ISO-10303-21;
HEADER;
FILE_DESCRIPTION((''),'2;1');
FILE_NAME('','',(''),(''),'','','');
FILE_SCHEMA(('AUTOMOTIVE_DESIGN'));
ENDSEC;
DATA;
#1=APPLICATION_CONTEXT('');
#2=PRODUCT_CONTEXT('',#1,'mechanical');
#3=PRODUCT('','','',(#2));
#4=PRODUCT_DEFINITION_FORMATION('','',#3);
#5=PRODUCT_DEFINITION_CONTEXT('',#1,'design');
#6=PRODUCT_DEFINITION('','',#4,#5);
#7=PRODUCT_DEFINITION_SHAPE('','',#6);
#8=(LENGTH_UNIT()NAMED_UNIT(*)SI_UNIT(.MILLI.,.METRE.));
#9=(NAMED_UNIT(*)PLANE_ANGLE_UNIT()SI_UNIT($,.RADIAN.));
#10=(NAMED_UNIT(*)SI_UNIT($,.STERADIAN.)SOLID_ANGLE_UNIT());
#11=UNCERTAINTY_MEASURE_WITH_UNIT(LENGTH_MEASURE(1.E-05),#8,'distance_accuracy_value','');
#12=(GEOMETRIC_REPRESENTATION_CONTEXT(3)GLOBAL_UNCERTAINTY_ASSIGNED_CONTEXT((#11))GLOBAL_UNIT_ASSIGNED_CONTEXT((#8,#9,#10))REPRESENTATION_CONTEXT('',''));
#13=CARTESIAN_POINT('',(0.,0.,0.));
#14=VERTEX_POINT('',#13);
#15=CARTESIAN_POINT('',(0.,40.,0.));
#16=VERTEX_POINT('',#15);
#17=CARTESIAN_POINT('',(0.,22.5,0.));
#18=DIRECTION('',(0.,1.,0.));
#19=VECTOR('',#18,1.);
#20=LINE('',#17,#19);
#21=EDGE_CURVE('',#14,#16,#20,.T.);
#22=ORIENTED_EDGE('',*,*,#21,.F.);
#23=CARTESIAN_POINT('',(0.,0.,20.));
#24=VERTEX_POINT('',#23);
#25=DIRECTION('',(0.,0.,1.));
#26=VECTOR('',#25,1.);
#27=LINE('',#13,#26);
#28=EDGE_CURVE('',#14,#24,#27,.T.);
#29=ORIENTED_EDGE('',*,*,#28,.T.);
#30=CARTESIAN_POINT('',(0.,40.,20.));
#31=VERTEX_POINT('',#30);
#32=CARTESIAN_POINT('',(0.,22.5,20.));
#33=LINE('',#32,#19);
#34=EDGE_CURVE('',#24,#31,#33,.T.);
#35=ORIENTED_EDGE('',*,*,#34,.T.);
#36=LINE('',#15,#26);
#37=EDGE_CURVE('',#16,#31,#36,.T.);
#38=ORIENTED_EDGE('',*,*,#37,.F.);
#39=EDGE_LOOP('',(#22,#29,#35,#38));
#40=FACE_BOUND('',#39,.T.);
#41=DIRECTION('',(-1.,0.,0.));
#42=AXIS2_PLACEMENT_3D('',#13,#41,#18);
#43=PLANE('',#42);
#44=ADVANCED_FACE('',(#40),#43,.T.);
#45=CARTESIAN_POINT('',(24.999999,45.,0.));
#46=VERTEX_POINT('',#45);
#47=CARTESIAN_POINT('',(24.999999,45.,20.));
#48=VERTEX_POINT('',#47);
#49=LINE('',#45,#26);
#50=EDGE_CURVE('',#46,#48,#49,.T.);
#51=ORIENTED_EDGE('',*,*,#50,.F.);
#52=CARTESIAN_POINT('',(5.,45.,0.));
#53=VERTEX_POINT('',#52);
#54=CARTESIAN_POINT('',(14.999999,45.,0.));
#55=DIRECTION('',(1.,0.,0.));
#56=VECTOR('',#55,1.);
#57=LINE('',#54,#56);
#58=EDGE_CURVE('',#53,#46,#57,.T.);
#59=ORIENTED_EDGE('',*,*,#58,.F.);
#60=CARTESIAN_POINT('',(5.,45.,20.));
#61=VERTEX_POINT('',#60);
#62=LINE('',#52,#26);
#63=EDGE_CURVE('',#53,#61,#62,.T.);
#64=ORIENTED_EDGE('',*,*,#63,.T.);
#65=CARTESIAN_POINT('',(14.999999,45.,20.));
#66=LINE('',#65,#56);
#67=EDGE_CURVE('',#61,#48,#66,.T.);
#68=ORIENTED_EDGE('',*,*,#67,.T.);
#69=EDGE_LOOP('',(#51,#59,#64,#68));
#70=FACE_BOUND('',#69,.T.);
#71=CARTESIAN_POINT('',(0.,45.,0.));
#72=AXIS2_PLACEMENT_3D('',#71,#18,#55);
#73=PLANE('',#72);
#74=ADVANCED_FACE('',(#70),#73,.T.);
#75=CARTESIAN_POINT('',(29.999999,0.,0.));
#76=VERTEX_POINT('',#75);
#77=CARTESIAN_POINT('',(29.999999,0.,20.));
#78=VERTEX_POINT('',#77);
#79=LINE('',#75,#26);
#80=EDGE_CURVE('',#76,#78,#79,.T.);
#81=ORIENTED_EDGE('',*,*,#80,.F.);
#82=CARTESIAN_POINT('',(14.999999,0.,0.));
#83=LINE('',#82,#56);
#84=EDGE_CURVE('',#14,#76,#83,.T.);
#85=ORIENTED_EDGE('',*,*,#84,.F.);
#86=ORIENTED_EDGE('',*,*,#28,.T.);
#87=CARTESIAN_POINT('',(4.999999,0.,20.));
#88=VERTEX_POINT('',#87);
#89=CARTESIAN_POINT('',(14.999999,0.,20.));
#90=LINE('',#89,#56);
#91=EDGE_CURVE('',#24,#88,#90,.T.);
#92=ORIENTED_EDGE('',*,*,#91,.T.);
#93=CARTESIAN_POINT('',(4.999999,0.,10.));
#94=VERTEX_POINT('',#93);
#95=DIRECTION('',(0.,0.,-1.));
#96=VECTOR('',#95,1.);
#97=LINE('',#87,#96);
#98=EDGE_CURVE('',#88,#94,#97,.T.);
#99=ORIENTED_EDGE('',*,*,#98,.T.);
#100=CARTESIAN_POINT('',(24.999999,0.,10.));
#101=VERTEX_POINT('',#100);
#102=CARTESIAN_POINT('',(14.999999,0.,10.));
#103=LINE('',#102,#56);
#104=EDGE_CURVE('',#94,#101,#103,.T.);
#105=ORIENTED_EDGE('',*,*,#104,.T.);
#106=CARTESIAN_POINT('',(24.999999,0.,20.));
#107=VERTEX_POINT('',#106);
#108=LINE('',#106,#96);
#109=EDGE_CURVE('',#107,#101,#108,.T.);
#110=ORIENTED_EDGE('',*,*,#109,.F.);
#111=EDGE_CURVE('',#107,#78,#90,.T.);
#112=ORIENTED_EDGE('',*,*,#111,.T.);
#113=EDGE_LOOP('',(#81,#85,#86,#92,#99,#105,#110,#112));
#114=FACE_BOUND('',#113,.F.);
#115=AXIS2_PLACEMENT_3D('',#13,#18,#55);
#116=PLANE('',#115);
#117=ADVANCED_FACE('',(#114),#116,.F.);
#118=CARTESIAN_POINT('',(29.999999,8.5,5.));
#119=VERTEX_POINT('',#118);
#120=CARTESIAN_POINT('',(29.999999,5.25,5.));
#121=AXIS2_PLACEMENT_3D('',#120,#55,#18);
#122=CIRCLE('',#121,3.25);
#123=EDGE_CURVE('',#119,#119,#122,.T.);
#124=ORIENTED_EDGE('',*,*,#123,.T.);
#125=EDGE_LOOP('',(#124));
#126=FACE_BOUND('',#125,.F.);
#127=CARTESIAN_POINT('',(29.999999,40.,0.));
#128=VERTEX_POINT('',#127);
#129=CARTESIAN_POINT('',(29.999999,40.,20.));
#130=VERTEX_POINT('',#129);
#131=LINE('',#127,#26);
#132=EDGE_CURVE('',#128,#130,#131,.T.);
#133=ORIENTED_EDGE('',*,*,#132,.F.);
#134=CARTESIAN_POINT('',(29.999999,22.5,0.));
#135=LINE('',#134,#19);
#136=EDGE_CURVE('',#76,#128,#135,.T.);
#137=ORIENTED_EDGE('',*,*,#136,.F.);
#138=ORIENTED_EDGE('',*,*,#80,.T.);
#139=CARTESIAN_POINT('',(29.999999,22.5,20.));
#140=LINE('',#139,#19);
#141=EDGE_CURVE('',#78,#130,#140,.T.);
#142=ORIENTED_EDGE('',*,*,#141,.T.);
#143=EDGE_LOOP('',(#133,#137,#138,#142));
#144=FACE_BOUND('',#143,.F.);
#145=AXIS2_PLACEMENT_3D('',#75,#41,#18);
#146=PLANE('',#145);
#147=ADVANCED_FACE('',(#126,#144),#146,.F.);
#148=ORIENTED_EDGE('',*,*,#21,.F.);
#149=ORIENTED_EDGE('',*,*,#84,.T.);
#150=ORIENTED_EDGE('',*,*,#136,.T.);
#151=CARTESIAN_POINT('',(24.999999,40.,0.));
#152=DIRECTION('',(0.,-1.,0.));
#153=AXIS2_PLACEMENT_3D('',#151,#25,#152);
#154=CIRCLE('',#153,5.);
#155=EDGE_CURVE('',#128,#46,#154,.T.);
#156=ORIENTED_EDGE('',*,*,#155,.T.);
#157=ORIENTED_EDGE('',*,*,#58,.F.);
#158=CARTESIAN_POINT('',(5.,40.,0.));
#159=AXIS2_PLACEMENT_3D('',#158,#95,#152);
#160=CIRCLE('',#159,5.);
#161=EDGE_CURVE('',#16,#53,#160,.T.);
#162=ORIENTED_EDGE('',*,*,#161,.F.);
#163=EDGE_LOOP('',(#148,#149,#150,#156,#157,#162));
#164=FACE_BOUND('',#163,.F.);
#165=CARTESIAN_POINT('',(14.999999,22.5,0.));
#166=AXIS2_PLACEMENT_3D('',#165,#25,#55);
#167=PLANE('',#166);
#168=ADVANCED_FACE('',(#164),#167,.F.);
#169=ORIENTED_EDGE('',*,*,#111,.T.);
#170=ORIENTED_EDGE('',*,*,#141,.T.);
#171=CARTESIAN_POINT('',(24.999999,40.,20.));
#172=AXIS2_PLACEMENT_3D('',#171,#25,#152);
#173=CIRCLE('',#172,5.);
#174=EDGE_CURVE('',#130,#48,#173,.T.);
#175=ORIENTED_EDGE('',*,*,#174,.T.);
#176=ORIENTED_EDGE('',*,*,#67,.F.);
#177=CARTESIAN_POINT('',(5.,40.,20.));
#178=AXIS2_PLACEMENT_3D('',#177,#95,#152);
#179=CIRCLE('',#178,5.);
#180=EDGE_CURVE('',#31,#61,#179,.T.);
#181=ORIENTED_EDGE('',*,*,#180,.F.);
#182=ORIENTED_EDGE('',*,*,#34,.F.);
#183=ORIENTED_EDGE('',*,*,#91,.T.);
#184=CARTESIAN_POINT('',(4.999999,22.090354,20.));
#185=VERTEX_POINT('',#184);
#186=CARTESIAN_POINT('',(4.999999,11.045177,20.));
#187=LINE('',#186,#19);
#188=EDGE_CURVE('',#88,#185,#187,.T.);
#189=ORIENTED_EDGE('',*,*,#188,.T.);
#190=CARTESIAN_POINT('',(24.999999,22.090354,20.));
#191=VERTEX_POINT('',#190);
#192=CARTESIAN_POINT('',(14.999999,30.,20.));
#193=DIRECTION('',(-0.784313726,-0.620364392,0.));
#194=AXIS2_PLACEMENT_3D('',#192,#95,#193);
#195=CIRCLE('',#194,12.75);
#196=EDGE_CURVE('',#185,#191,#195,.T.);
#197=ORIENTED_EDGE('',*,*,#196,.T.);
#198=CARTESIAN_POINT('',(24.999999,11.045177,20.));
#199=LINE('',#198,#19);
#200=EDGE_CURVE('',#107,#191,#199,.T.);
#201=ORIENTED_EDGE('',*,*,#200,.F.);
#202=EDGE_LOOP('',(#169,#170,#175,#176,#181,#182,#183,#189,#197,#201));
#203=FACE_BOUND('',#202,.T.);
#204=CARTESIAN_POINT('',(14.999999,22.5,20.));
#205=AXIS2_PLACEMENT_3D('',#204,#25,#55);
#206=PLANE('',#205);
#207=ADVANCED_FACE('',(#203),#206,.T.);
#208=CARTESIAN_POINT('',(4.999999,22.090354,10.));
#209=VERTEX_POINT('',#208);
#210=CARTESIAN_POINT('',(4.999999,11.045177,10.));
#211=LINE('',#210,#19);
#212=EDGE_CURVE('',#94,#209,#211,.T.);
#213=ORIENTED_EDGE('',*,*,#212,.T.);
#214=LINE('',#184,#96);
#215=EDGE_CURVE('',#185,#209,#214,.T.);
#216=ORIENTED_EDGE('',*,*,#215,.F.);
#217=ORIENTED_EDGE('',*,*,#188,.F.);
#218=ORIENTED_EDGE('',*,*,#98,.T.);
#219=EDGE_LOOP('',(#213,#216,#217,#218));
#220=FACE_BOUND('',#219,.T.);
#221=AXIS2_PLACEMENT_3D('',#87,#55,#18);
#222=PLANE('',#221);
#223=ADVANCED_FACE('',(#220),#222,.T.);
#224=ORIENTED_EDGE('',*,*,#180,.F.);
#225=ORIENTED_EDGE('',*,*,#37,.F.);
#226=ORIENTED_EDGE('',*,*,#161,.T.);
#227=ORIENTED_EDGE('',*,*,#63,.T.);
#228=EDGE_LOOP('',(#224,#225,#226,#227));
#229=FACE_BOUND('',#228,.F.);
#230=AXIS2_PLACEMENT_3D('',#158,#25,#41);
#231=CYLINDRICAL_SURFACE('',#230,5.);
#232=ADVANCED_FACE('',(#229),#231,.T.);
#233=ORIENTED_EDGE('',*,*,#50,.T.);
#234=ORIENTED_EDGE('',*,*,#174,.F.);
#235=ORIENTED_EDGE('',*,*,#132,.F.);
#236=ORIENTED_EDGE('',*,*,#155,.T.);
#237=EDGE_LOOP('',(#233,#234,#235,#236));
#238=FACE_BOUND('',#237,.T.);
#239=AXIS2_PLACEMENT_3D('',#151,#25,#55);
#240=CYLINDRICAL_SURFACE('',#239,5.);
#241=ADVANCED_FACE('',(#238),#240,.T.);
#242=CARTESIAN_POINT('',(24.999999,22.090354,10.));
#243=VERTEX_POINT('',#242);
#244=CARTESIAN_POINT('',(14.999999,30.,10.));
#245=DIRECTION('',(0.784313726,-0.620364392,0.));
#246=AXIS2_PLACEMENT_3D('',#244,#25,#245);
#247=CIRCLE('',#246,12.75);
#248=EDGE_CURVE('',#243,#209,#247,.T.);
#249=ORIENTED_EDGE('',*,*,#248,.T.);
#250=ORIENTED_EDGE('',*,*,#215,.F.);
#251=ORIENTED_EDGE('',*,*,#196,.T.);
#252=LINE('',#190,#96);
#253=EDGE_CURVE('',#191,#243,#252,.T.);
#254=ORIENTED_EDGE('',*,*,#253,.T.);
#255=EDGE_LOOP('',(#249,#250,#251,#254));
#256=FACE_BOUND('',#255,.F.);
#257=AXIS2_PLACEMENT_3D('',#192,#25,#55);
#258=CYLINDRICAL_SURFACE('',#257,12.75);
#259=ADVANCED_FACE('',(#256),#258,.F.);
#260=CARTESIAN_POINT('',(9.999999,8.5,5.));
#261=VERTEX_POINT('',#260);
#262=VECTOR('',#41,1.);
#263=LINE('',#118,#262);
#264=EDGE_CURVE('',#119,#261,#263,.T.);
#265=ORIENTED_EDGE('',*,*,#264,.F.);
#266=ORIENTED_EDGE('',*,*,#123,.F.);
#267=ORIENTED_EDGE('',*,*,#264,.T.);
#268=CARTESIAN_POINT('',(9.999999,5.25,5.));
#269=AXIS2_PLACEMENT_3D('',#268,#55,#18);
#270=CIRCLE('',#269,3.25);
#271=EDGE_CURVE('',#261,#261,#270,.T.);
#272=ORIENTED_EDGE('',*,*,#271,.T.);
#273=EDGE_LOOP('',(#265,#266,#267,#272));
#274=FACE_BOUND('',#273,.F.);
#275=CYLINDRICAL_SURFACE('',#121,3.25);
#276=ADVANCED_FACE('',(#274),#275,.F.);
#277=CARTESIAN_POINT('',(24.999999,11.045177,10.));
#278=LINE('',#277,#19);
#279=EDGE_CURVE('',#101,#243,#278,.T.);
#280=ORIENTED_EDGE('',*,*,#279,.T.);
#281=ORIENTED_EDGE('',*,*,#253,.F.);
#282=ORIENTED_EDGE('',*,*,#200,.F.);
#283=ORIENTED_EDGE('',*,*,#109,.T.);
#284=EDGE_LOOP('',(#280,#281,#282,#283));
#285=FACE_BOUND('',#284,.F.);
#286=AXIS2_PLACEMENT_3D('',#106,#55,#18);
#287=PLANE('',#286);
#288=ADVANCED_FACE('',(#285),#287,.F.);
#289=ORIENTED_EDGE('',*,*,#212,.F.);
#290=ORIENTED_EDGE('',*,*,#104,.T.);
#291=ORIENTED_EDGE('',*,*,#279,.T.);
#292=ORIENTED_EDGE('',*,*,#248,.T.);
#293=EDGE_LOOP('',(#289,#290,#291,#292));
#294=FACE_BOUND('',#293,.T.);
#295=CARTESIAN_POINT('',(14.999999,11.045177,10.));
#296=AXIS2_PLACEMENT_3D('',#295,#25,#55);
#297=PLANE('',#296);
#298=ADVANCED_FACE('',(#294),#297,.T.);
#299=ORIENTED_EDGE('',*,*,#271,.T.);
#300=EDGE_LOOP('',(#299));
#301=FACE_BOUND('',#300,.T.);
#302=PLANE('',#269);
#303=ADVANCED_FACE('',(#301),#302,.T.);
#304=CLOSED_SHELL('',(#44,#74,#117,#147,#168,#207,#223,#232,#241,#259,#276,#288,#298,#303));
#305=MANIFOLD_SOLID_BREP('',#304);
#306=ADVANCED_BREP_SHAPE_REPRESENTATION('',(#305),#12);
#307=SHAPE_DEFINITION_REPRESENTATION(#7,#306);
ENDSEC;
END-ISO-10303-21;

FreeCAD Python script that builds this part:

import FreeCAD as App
import Part
import Sketcher
from FreeCAD import Vector


def edges_at(feature, points):
    """Names of the edges that pass closest to the given points."""
    edges = feature.Shape.Edges
    near = lambda p: min(range(len(edges)), key=lambda i: edges[i].distToShape(Part.Vertex(*p))[0])
    return sorted({f"Edge{near(p) + 1}" for p in points})


def add_polygon(sketch, points):
    """Adds a closed chain of lines whose ends are joined by coincident constraints."""
    first, n = sketch.GeometryCount, len(points)
    for a, b in zip(points, points[1:] + points[:1]):
        sketch.addGeometry(Part.LineSegment(App.Vector(*a, 0), App.Vector(*b, 0)), False)
    for i in range(n):
        sketch.addConstraint(Sketcher.Constraint("Coincident", first + i, 2, first + (i + 1) % n, 1))

doc = App.newDocument("Part")
body = doc.addObject("PartDesign::Body", "Body")

# Sketch on XY plane
sketch1 = body.newObject("Sketcher::SketchObject", "Sketch")
sketch1.AttachmentSupport = (doc.getObject("XY_Plane"), [""])
sketch1.MapMode = "FlatFace"
add_polygon(sketch1, [(0, 45), (0, 0), (30, 0), (30, 45)])  # lines 0-3
sketch1.addConstraint([
    Sketcher.Constraint("Vertical", 0),
    Sketcher.Constraint("Horizontal", 1),
    Sketcher.Constraint("Vertical", 2),
    Sketcher.Constraint("Horizontal", 3),
    Sketcher.Constraint("Coincident", 0, 2, -1, 1),
    Sketcher.Constraint("DistanceX", 1, 1, 1, 2, 29.999999),
    Sketcher.Constraint("DistanceY", 0, 2, 0, 1, 45.0),
])
pad1 = body.newObject("PartDesign::Pad", "Pad")
pad1.Profile = sketch1
pad1.Length = 20

# Sketch on XY plane
sketch2 = body.newObject("Sketcher::SketchObject", "Sketch001")
sketch2.AttachmentSupport = (doc.getObject("XY_Plane"), [""])
sketch2.MapMode = "FlatFace"
sketch2.AttachmentOffset = App.Placement(Vector(0, 0, 20), App.Rotation())
sketch2.addGeometry(Part.Circle(Vector(15, 30, 0), Vector(0, 0, 1), 13), False)
sketch2.addConstraint([
    Sketcher.Constraint("Diameter", 0, 25.5),
    Sketcher.Constraint("DistanceX", -1, 1, 0, 3, 14.999999),
    Sketcher.Constraint("DistanceY", -1, 1, 0, 3, 30.0),
])
pocket1 = body.newObject("PartDesign::Pocket", "Pocket")
pocket1.Profile = sketch2
pocket1.Length = 10

# Sketch on YZ plane
sketch3 = body.newObject("Sketcher::SketchObject", "Sketch002")
sketch3.AttachmentSupport = (doc.getObject("YZ_Plane"), [""])
sketch3.MapMode = "FlatFace"
sketch3.AttachmentOffset = App.Placement(Vector(0, 0, 29.999999), App.Rotation())
sketch3.addGeometry(Part.Circle(Vector(5.2, 5, 0), Vector(0, 0, 1), 3.2), False)
sketch3.addConstraint([
    Sketcher.Constraint("Diameter", 0, 6.5),
    Sketcher.Constraint("DistanceY", -1, 1, 0, 3, 5.0),
    Sketcher.Constraint("DistanceX", -1, 1, 0, 3, 5.25),
])
pocket2 = body.newObject("PartDesign::Pocket", "Pocket001")
pocket2.Profile = sketch3
pocket2.Length = 20

# Sketch on XY plane
sketch4 = body.newObject("Sketcher::SketchObject", "Sketch003")
sketch4.AttachmentSupport = (doc.getObject("XY_Plane"), [""])
sketch4.MapMode = "FlatFace"
sketch4.AttachmentOffset = App.Placement(Vector(0, 0, 20), App.Rotation())
add_polygon(sketch4, [(5, 22), (5, 0), (25, 0), (25, 22)])  # lines 0-3
sketch4.addConstraint([
    Sketcher.Constraint("Vertical", 0),
    Sketcher.Constraint("Horizontal", 1),
    Sketcher.Constraint("Vertical", 2),
    Sketcher.Constraint("Horizontal", 3),
    Sketcher.Constraint("PointOnObject", 0, 2, -1),
    Sketcher.Constraint("DistanceX", 1, 1, 1, 2, 20.0),
    Sketcher.Constraint("DistanceX", -1, 1, 0, 2, 4.999999),
    Sketcher.Constraint("DistanceY", 0, 2, 0, 1, 22.090354),
])
pocket3 = body.newObject("PartDesign::Pocket", "Pocket002")
pocket3.Profile = sketch4
pocket3.Length = 10
doc.recompute()

fillet = body.newObject("PartDesign::Fillet", "Fillet")
fillet.Base = (pocket3, edges_at(pocket3, [(0, 45, 10), (30, 45, 10)]))
fillet.Radius = 5

doc.recompute()
